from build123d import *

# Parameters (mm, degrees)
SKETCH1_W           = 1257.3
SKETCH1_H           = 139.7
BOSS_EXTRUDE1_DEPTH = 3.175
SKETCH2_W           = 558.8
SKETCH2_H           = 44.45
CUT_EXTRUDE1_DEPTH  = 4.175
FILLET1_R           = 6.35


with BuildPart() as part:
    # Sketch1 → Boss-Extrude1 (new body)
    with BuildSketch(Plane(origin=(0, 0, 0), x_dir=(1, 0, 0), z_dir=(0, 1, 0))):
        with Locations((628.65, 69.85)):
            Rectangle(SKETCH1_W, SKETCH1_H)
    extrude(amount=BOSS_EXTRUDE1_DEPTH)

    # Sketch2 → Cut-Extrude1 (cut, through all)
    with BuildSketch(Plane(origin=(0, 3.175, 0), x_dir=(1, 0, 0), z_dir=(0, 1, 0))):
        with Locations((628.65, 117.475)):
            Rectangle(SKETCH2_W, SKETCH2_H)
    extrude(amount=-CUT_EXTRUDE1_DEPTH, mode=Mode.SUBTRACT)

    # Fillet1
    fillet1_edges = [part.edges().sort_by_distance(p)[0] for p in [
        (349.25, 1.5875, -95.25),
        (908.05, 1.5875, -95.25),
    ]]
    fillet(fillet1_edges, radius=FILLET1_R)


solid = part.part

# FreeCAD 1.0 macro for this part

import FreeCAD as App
import Part
import Sketcher

V = App.Vector
Q = App.Units.Quantity


def edges_at(feature, points):
    """Names of the edges that pass closest to the given points."""
    edges = feature.Shape.Edges
    near = lambda p: min(range(len(edges)), key=lambda i: edges[i].distToShape(Part.Vertex(*p))[0])
    return sorted({f"Edge{near(p) + 1}" for p in points})

doc = App.newDocument("Part")
body = doc.addObject("PartDesign::Body", "Body")

# Sketch on XZ plane
sketch1 = body.newObject("Sketcher::SketchObject", "Sketch")
sketch1.AttachmentSupport = (doc.getObject("XZ_Plane"), [""])
sketch1.MapMode = "FlatFace"
sketch1.addGeometry(Part.LineSegment(V(0, -140, 0), V(0, 0, 0)), False)
sketch1.addGeometry(Part.LineSegment(V(0, 0, 0), V(1257, 0, 0)), False)
sketch1.addGeometry(Part.LineSegment(V(1257, 0, 0), V(1257, -140, 0)), False)
sketch1.addGeometry(Part.LineSegment(V(1257, -140, 0), V(0, -140, 0)), False)
sketch1.addConstraint(Sketcher.Constraint("Coincident", 0, 2, 1, 1))
sketch1.addConstraint(Sketcher.Constraint("Coincident", 1, 2, 2, 1))
sketch1.addConstraint(Sketcher.Constraint("Coincident", 2, 2, 3, 1))
sketch1.addConstraint(Sketcher.Constraint("Coincident", 3, 2, 0, 1))
sketch1.addConstraint(Sketcher.Constraint("Vertical", 0))
sketch1.addConstraint(Sketcher.Constraint("Horizontal", 1))
sketch1.addConstraint(Sketcher.Constraint("Vertical", 2))
sketch1.addConstraint(Sketcher.Constraint("Horizontal", 3))
sketch1.addConstraint(Sketcher.Constraint("Coincident", 0, 2, -1, 1))
sketch1.addConstraint(Sketcher.Constraint("DistanceX", 1, 1, 1, 2, Q("49.5 in")))
sketch1.addConstraint(Sketcher.Constraint("DistanceY", 0, 1, 0, 2, Q("5.5 in")))
pad1 = body.newObject("PartDesign::Pad", "Pad")
pad1.Profile = sketch1
pad1.Length = Q("0.125 in")
pad1.Reversed = True

# Sketch on XZ plane
sketch2 = body.newObject("Sketcher::SketchObject", "Sketch001")
sketch2.AttachmentSupport = (doc.getObject("XZ_Plane"), [""])
sketch2.MapMode = "FlatFace"
sketch2.AttachmentOffset = App.Placement(V(0, 0, -0.125 * 25.4), App.Rotation())
sketch2.addGeometry(Part.LineSegment(V(349, -140, 0), V(349, -95, 0)), False)
sketch2.addGeometry(Part.LineSegment(V(349, -95, 0), V(908, -95, 0)), False)
sketch2.addGeometry(Part.LineSegment(V(908, -95, 0), V(908, -140, 0)), False)
sketch2.addGeometry(Part.LineSegment(V(908, -140, 0), V(349, -140, 0)), False)
sketch2.addConstraint(Sketcher.Constraint("Coincident", 0, 2, 1, 1))
sketch2.addConstraint(Sketcher.Constraint("Coincident", 1, 2, 2, 1))
sketch2.addConstraint(Sketcher.Constraint("Coincident", 2, 2, 3, 1))
sketch2.addConstraint(Sketcher.Constraint("Coincident", 3, 2, 0, 1))
sketch2.addConstraint(Sketcher.Constraint("Vertical", 0))
sketch2.addConstraint(Sketcher.Constraint("Horizontal", 1))
sketch2.addConstraint(Sketcher.Constraint("Vertical", 2))
sketch2.addConstraint(Sketcher.Constraint("Horizontal", 3))
sketch2.addConstraint(Sketcher.Constraint("DistanceX", 1, 1, 1, 2, Q("22 in")))
sketch2.addConstraint(Sketcher.Constraint("DistanceY", 0, 1, 0, 2, Q("1.75 in")))
sketch2.addConstraint(Sketcher.Constraint("DistanceY", 2, 2, -1, 1, Q("5.5 in")))
sketch2.addConstraint(Sketcher.Constraint("DistanceX", -1, 1, 0, 2, Q("13.75 in")))
pocket1 = body.newObject("PartDesign::Pocket", "Pocket")
pocket1.Profile = sketch2
pocket1.Type = "ThroughAll"
pocket1.Reversed = True
doc.recompute()

fillet = body.newObject("PartDesign::Fillet", "Fillet")
fillet.Base = (pocket1, edges_at(pocket1, [(349.25, 1.587, -95.25), (908.05, 1.587, -95.25)]))
fillet.Radius = Q("0.25 in")

doc.recompute()
